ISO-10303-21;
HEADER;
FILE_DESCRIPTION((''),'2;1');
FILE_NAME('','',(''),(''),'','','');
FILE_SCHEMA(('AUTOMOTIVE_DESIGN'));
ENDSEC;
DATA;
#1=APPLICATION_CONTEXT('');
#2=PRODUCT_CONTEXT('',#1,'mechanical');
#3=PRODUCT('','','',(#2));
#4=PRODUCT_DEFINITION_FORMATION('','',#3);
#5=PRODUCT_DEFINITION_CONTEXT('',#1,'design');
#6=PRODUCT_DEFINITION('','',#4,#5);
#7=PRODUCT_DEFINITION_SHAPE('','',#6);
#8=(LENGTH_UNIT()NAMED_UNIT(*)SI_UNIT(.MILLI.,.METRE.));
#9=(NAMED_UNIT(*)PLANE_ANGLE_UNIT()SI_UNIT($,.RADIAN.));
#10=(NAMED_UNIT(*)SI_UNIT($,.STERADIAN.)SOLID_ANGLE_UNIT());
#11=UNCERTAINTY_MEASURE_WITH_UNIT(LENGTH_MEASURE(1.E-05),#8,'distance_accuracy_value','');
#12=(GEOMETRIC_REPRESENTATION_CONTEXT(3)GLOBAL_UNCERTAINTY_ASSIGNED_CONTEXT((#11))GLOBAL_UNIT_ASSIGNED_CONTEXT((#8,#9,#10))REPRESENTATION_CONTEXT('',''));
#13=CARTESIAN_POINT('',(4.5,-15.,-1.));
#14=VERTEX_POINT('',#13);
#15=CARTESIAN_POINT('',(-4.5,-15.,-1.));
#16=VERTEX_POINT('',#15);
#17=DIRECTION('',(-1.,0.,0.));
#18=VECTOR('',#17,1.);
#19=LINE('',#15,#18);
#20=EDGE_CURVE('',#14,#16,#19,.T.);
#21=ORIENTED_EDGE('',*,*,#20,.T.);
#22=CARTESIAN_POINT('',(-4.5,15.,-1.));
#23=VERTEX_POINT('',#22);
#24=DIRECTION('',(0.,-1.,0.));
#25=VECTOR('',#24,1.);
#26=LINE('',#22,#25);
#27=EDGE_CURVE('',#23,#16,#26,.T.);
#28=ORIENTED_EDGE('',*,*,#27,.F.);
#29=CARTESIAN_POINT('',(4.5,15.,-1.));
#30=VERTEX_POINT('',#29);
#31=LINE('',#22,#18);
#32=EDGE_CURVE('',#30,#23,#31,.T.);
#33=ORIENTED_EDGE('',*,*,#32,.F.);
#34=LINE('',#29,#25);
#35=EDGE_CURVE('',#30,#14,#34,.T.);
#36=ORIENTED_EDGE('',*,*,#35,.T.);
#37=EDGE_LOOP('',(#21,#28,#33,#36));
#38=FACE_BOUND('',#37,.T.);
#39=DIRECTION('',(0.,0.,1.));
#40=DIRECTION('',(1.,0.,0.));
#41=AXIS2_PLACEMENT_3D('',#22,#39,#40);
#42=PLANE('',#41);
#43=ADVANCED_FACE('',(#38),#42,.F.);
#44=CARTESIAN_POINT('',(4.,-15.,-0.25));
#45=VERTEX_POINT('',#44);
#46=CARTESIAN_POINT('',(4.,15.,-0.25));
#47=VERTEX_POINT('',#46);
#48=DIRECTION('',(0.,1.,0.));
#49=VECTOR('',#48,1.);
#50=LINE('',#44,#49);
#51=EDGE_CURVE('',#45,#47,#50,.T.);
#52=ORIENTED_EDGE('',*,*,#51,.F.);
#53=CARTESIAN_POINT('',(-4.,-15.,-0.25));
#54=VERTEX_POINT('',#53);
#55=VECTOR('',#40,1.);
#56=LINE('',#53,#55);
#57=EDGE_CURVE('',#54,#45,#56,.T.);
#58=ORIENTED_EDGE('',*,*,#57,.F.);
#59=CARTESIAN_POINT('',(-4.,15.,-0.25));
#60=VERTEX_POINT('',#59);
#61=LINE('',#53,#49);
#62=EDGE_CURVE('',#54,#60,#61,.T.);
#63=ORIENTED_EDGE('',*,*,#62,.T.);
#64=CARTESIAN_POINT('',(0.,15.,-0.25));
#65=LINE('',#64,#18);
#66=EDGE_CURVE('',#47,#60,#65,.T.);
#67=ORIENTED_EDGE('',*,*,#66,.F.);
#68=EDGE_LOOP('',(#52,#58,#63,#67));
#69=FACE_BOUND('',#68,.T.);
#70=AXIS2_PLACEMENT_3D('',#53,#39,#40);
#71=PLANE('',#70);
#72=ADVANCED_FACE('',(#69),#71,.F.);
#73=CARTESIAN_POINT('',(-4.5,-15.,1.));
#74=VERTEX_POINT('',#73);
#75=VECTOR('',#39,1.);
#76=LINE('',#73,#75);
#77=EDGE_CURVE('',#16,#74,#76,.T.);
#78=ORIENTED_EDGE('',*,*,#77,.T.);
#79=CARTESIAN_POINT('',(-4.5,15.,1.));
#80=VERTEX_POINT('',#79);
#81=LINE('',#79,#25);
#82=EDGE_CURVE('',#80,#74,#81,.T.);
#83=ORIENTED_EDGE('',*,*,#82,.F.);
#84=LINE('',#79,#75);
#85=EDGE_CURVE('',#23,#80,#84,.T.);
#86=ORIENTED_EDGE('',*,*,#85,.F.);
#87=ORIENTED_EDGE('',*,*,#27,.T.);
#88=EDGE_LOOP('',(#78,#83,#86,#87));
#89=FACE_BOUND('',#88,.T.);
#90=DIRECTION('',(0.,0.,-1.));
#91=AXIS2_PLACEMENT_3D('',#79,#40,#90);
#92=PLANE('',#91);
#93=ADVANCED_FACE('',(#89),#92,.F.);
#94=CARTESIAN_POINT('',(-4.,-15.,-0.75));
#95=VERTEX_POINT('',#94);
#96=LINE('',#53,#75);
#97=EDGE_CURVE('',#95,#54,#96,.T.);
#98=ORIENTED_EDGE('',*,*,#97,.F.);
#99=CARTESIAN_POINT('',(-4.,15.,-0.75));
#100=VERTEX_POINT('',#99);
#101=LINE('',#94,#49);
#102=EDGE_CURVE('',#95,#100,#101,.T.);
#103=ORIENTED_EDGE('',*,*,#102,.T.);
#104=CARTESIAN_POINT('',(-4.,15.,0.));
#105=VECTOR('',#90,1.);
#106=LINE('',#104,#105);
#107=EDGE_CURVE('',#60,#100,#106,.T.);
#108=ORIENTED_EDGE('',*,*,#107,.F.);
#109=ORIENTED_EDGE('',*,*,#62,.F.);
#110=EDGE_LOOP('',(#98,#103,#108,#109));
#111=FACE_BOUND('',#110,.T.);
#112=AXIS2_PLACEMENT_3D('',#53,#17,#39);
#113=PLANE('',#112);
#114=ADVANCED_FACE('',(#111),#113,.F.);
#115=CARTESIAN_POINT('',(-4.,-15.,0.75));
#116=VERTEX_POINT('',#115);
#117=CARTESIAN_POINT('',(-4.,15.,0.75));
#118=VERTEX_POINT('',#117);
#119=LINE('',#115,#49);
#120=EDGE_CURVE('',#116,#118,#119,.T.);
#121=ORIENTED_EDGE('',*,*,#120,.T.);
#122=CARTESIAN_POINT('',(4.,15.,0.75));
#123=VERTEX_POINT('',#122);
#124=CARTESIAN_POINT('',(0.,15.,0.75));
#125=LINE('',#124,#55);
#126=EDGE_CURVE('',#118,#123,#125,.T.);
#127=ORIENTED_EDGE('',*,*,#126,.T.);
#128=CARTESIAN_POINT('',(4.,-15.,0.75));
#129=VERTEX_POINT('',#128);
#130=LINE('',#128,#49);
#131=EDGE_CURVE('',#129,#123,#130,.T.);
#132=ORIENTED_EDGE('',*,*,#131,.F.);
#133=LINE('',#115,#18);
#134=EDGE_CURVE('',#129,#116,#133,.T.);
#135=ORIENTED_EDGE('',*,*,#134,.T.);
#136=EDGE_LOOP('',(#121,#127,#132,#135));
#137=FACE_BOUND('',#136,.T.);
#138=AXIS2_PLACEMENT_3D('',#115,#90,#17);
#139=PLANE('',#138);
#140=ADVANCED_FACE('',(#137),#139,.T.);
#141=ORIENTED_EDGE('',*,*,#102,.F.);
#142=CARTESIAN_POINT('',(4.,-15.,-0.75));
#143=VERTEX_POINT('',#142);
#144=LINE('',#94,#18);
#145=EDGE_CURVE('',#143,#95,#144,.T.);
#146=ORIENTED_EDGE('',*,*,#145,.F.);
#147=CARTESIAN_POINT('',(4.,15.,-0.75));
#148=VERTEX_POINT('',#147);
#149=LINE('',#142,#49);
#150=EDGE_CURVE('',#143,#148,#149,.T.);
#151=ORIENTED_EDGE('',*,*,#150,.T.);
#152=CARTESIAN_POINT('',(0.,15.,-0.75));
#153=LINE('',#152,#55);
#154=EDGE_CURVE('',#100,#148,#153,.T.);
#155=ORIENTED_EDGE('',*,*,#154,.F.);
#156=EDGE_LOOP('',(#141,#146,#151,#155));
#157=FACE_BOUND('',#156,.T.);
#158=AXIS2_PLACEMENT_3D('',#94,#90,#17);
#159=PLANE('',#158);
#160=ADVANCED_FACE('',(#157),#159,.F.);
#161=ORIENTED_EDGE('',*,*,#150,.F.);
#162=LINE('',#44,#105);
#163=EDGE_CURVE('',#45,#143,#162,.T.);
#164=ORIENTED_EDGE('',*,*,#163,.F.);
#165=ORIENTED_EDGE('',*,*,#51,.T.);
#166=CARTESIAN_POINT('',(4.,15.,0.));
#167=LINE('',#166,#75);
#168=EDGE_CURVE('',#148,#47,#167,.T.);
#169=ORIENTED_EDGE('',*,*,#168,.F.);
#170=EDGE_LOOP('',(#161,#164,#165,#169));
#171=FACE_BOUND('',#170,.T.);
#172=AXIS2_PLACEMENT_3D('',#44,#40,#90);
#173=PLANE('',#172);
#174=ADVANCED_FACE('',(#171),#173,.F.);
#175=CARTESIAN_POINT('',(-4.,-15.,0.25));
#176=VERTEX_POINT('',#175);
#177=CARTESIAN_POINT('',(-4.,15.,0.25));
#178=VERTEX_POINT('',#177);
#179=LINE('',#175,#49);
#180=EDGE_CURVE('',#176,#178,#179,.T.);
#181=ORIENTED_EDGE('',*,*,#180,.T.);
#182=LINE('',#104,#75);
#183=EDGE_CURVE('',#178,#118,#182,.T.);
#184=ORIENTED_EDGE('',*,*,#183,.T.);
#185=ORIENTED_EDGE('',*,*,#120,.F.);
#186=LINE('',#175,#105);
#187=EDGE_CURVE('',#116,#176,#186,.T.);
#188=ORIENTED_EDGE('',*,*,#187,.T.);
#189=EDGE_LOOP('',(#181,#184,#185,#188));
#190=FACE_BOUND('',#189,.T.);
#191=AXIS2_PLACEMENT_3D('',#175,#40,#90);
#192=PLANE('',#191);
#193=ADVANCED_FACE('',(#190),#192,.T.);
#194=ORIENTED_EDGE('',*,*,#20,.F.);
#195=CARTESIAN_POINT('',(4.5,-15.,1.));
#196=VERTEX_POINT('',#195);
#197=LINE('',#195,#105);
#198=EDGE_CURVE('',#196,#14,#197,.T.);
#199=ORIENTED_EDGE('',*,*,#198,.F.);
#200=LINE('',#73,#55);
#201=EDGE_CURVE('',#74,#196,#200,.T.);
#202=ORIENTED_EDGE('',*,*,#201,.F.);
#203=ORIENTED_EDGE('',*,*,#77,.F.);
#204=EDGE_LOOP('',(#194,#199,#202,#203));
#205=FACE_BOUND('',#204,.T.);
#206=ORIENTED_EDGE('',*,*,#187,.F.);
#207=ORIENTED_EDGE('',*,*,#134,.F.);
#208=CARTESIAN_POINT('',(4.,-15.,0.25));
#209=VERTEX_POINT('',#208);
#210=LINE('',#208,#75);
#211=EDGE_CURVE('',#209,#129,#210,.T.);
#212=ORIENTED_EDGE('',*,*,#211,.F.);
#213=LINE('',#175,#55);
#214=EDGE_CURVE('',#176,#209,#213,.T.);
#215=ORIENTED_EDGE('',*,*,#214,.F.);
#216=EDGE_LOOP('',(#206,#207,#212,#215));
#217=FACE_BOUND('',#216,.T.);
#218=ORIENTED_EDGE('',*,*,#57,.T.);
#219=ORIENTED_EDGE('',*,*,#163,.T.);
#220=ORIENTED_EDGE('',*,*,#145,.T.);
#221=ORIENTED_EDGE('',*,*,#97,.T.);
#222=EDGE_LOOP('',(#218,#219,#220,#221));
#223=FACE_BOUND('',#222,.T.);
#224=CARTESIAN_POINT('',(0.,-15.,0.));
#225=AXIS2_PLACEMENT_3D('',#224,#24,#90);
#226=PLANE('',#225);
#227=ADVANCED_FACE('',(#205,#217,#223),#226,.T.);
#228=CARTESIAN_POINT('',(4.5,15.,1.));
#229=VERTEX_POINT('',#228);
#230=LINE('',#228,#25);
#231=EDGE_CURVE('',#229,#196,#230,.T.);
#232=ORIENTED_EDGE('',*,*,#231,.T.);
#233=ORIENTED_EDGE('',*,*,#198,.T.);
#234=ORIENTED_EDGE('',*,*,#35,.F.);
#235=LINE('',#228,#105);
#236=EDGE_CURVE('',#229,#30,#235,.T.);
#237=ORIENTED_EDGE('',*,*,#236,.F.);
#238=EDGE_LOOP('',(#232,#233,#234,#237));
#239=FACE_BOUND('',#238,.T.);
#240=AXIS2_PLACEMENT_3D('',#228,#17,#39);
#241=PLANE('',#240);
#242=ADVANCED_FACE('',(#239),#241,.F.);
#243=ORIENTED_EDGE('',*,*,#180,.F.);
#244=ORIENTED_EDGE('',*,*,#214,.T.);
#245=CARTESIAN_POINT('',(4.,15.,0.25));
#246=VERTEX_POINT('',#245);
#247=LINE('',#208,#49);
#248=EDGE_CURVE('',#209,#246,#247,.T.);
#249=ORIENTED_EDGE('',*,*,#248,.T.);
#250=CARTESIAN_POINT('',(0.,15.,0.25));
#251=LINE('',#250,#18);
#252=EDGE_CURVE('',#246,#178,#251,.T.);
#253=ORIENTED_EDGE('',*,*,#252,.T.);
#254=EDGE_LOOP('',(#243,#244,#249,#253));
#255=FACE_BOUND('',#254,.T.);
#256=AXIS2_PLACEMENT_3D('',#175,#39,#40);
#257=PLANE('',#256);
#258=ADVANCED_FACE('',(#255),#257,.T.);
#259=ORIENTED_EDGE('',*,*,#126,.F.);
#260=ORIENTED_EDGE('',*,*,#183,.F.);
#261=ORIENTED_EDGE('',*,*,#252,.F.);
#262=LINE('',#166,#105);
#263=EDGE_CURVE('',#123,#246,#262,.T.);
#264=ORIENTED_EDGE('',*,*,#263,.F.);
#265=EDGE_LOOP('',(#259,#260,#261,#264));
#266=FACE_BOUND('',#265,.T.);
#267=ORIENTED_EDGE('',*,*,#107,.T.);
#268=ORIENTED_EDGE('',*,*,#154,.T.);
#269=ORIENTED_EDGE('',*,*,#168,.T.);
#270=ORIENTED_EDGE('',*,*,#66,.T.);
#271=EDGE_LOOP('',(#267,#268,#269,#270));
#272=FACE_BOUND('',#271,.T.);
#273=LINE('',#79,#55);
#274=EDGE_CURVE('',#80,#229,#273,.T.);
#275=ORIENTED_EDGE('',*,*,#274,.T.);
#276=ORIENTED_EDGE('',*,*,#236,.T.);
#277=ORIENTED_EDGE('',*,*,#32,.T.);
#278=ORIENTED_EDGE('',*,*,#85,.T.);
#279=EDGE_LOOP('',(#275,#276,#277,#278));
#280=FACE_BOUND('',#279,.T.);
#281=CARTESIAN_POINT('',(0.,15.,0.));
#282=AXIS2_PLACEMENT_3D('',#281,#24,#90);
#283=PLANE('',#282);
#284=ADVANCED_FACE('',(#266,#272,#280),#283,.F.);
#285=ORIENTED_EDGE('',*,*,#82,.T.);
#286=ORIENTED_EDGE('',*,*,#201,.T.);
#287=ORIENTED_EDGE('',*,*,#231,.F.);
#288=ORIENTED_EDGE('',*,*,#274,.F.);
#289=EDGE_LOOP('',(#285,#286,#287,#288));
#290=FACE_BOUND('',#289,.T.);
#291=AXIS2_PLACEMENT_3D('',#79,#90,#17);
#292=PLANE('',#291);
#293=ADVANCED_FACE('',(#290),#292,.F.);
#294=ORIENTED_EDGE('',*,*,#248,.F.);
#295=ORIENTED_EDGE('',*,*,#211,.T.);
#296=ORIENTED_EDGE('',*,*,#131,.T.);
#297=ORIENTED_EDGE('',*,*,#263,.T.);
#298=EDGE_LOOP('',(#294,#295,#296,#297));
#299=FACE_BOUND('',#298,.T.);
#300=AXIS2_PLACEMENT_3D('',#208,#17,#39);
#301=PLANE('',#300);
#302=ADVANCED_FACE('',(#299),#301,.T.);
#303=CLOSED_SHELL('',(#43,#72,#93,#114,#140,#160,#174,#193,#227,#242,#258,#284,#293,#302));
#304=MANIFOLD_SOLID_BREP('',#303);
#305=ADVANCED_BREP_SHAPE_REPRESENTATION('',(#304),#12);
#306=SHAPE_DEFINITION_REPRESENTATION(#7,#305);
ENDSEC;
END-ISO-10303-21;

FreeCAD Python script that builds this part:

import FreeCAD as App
import Part
import Sketcher
Q = App.Units.Quantity


def add_polygon(sketch, points):
    """Adds a closed chain of lines whose ends are joined by coincident constraints."""
    first, n = sketch.GeometryCount, len(points)
    for a, b in zip(points, points[1:] + points[:1]):
        sketch.addGeometry(Part.LineSegment(App.Vector(*a, 0), App.Vector(*b, 0)), False)
    for i in range(n):
        sketch.addConstraint(Sketcher.Constraint("Coincident", first + i, 2, first + (i + 1) % n, 1))

doc = App.newDocument("Part")
body = doc.addObject("PartDesign::Body", "Body")

# Sketch on XZ plane
sketch1 = body.newObject("Sketcher::SketchObject", "Sketch")
sketch1.AttachmentSupport = (doc.getObject("XZ_Plane"), [""])
sketch1.MapMode = "FlatFace"
add_polygon(sketch1, [(-4.5, -1), (-4.5, 1), (4.5, 1), (4.5, -1)])  # lines 0-3
sketch1.addConstraint(Sketcher.Constraint("Vertical", 0))
sketch1.addConstraint(Sketcher.Constraint("Horizontal", 1))
sketch1.addConstraint(Sketcher.Constraint("Vertical", 2))
sketch1.addConstraint(Sketcher.Constraint("Horizontal", 3))
sketch1.addConstraint(Sketcher.Constraint("Symmetric", 0, 2, 2, 2, -1, 1))
sketch1.addConstraint(Sketcher.Constraint("DistanceX", 1, 1, 1, 2, Q("9 mm")))
sketch1.addConstraint(Sketcher.Constraint("DistanceY", 0, 1, 0, 2, Q("2 mm")))
pad1 = body.newObject("PartDesign::Pad", "Pad")
pad1.Profile = sketch1
pad1.Length = 30
pad1.Midplane = True

# Sketch on XZ plane
sketch2 = body.newObject("Sketcher::SketchObject", "Sketch001")
sketch2.AttachmentSupport = (doc.getObject("XZ_Plane"), [""])
sketch2.MapMode = "FlatFace"
sketch2.AttachmentOffset = App.Placement(App.Vector(0, 0, 16), App.Rotation())
add_polygon(sketch2, [(-4, -0.75), (-4, -0.25), (4, -0.25), (4, -0.75)])  # lines 0-3
sketch2.addConstraint(Sketcher.Constraint("Vertical", 0))
sketch2.addConstraint(Sketcher.Constraint("Horizontal", 1))
sketch2.addConstraint(Sketcher.Constraint("Vertical", 2))
sketch2.addConstraint(Sketcher.Constraint("Horizontal", 3))
sketch2.addConstraint(Sketcher.Constraint("DistanceX", 1, 1, 1, 2, Q("8 mm")))
sketch2.addConstraint(Sketcher.Constraint("DistanceY", 0, 1, 0, 2, Q("0.5 mm")))
sketch2.addConstraint(Sketcher.Constraint("DistanceX", 0, 2, -1, 1, Q("4 mm")))
sketch2.addConstraint(Sketcher.Constraint("DistanceY", 0, 2, -1, 1, Q("0.25 mm")))
pocket1 = body.newObject("PartDesign::Pocket", "Pocket")
pocket1.Profile = sketch2
pocket1.Length = 32
doc.recompute()

mirrored = body.newObject("PartDesign::Mirrored", "Mirrored")
mirrored.Originals = [pocket1]
mirrored.MirrorPlane = (doc.getObject("XY_Plane"), [""])
body.Tip = mirrored

doc.recompute()
